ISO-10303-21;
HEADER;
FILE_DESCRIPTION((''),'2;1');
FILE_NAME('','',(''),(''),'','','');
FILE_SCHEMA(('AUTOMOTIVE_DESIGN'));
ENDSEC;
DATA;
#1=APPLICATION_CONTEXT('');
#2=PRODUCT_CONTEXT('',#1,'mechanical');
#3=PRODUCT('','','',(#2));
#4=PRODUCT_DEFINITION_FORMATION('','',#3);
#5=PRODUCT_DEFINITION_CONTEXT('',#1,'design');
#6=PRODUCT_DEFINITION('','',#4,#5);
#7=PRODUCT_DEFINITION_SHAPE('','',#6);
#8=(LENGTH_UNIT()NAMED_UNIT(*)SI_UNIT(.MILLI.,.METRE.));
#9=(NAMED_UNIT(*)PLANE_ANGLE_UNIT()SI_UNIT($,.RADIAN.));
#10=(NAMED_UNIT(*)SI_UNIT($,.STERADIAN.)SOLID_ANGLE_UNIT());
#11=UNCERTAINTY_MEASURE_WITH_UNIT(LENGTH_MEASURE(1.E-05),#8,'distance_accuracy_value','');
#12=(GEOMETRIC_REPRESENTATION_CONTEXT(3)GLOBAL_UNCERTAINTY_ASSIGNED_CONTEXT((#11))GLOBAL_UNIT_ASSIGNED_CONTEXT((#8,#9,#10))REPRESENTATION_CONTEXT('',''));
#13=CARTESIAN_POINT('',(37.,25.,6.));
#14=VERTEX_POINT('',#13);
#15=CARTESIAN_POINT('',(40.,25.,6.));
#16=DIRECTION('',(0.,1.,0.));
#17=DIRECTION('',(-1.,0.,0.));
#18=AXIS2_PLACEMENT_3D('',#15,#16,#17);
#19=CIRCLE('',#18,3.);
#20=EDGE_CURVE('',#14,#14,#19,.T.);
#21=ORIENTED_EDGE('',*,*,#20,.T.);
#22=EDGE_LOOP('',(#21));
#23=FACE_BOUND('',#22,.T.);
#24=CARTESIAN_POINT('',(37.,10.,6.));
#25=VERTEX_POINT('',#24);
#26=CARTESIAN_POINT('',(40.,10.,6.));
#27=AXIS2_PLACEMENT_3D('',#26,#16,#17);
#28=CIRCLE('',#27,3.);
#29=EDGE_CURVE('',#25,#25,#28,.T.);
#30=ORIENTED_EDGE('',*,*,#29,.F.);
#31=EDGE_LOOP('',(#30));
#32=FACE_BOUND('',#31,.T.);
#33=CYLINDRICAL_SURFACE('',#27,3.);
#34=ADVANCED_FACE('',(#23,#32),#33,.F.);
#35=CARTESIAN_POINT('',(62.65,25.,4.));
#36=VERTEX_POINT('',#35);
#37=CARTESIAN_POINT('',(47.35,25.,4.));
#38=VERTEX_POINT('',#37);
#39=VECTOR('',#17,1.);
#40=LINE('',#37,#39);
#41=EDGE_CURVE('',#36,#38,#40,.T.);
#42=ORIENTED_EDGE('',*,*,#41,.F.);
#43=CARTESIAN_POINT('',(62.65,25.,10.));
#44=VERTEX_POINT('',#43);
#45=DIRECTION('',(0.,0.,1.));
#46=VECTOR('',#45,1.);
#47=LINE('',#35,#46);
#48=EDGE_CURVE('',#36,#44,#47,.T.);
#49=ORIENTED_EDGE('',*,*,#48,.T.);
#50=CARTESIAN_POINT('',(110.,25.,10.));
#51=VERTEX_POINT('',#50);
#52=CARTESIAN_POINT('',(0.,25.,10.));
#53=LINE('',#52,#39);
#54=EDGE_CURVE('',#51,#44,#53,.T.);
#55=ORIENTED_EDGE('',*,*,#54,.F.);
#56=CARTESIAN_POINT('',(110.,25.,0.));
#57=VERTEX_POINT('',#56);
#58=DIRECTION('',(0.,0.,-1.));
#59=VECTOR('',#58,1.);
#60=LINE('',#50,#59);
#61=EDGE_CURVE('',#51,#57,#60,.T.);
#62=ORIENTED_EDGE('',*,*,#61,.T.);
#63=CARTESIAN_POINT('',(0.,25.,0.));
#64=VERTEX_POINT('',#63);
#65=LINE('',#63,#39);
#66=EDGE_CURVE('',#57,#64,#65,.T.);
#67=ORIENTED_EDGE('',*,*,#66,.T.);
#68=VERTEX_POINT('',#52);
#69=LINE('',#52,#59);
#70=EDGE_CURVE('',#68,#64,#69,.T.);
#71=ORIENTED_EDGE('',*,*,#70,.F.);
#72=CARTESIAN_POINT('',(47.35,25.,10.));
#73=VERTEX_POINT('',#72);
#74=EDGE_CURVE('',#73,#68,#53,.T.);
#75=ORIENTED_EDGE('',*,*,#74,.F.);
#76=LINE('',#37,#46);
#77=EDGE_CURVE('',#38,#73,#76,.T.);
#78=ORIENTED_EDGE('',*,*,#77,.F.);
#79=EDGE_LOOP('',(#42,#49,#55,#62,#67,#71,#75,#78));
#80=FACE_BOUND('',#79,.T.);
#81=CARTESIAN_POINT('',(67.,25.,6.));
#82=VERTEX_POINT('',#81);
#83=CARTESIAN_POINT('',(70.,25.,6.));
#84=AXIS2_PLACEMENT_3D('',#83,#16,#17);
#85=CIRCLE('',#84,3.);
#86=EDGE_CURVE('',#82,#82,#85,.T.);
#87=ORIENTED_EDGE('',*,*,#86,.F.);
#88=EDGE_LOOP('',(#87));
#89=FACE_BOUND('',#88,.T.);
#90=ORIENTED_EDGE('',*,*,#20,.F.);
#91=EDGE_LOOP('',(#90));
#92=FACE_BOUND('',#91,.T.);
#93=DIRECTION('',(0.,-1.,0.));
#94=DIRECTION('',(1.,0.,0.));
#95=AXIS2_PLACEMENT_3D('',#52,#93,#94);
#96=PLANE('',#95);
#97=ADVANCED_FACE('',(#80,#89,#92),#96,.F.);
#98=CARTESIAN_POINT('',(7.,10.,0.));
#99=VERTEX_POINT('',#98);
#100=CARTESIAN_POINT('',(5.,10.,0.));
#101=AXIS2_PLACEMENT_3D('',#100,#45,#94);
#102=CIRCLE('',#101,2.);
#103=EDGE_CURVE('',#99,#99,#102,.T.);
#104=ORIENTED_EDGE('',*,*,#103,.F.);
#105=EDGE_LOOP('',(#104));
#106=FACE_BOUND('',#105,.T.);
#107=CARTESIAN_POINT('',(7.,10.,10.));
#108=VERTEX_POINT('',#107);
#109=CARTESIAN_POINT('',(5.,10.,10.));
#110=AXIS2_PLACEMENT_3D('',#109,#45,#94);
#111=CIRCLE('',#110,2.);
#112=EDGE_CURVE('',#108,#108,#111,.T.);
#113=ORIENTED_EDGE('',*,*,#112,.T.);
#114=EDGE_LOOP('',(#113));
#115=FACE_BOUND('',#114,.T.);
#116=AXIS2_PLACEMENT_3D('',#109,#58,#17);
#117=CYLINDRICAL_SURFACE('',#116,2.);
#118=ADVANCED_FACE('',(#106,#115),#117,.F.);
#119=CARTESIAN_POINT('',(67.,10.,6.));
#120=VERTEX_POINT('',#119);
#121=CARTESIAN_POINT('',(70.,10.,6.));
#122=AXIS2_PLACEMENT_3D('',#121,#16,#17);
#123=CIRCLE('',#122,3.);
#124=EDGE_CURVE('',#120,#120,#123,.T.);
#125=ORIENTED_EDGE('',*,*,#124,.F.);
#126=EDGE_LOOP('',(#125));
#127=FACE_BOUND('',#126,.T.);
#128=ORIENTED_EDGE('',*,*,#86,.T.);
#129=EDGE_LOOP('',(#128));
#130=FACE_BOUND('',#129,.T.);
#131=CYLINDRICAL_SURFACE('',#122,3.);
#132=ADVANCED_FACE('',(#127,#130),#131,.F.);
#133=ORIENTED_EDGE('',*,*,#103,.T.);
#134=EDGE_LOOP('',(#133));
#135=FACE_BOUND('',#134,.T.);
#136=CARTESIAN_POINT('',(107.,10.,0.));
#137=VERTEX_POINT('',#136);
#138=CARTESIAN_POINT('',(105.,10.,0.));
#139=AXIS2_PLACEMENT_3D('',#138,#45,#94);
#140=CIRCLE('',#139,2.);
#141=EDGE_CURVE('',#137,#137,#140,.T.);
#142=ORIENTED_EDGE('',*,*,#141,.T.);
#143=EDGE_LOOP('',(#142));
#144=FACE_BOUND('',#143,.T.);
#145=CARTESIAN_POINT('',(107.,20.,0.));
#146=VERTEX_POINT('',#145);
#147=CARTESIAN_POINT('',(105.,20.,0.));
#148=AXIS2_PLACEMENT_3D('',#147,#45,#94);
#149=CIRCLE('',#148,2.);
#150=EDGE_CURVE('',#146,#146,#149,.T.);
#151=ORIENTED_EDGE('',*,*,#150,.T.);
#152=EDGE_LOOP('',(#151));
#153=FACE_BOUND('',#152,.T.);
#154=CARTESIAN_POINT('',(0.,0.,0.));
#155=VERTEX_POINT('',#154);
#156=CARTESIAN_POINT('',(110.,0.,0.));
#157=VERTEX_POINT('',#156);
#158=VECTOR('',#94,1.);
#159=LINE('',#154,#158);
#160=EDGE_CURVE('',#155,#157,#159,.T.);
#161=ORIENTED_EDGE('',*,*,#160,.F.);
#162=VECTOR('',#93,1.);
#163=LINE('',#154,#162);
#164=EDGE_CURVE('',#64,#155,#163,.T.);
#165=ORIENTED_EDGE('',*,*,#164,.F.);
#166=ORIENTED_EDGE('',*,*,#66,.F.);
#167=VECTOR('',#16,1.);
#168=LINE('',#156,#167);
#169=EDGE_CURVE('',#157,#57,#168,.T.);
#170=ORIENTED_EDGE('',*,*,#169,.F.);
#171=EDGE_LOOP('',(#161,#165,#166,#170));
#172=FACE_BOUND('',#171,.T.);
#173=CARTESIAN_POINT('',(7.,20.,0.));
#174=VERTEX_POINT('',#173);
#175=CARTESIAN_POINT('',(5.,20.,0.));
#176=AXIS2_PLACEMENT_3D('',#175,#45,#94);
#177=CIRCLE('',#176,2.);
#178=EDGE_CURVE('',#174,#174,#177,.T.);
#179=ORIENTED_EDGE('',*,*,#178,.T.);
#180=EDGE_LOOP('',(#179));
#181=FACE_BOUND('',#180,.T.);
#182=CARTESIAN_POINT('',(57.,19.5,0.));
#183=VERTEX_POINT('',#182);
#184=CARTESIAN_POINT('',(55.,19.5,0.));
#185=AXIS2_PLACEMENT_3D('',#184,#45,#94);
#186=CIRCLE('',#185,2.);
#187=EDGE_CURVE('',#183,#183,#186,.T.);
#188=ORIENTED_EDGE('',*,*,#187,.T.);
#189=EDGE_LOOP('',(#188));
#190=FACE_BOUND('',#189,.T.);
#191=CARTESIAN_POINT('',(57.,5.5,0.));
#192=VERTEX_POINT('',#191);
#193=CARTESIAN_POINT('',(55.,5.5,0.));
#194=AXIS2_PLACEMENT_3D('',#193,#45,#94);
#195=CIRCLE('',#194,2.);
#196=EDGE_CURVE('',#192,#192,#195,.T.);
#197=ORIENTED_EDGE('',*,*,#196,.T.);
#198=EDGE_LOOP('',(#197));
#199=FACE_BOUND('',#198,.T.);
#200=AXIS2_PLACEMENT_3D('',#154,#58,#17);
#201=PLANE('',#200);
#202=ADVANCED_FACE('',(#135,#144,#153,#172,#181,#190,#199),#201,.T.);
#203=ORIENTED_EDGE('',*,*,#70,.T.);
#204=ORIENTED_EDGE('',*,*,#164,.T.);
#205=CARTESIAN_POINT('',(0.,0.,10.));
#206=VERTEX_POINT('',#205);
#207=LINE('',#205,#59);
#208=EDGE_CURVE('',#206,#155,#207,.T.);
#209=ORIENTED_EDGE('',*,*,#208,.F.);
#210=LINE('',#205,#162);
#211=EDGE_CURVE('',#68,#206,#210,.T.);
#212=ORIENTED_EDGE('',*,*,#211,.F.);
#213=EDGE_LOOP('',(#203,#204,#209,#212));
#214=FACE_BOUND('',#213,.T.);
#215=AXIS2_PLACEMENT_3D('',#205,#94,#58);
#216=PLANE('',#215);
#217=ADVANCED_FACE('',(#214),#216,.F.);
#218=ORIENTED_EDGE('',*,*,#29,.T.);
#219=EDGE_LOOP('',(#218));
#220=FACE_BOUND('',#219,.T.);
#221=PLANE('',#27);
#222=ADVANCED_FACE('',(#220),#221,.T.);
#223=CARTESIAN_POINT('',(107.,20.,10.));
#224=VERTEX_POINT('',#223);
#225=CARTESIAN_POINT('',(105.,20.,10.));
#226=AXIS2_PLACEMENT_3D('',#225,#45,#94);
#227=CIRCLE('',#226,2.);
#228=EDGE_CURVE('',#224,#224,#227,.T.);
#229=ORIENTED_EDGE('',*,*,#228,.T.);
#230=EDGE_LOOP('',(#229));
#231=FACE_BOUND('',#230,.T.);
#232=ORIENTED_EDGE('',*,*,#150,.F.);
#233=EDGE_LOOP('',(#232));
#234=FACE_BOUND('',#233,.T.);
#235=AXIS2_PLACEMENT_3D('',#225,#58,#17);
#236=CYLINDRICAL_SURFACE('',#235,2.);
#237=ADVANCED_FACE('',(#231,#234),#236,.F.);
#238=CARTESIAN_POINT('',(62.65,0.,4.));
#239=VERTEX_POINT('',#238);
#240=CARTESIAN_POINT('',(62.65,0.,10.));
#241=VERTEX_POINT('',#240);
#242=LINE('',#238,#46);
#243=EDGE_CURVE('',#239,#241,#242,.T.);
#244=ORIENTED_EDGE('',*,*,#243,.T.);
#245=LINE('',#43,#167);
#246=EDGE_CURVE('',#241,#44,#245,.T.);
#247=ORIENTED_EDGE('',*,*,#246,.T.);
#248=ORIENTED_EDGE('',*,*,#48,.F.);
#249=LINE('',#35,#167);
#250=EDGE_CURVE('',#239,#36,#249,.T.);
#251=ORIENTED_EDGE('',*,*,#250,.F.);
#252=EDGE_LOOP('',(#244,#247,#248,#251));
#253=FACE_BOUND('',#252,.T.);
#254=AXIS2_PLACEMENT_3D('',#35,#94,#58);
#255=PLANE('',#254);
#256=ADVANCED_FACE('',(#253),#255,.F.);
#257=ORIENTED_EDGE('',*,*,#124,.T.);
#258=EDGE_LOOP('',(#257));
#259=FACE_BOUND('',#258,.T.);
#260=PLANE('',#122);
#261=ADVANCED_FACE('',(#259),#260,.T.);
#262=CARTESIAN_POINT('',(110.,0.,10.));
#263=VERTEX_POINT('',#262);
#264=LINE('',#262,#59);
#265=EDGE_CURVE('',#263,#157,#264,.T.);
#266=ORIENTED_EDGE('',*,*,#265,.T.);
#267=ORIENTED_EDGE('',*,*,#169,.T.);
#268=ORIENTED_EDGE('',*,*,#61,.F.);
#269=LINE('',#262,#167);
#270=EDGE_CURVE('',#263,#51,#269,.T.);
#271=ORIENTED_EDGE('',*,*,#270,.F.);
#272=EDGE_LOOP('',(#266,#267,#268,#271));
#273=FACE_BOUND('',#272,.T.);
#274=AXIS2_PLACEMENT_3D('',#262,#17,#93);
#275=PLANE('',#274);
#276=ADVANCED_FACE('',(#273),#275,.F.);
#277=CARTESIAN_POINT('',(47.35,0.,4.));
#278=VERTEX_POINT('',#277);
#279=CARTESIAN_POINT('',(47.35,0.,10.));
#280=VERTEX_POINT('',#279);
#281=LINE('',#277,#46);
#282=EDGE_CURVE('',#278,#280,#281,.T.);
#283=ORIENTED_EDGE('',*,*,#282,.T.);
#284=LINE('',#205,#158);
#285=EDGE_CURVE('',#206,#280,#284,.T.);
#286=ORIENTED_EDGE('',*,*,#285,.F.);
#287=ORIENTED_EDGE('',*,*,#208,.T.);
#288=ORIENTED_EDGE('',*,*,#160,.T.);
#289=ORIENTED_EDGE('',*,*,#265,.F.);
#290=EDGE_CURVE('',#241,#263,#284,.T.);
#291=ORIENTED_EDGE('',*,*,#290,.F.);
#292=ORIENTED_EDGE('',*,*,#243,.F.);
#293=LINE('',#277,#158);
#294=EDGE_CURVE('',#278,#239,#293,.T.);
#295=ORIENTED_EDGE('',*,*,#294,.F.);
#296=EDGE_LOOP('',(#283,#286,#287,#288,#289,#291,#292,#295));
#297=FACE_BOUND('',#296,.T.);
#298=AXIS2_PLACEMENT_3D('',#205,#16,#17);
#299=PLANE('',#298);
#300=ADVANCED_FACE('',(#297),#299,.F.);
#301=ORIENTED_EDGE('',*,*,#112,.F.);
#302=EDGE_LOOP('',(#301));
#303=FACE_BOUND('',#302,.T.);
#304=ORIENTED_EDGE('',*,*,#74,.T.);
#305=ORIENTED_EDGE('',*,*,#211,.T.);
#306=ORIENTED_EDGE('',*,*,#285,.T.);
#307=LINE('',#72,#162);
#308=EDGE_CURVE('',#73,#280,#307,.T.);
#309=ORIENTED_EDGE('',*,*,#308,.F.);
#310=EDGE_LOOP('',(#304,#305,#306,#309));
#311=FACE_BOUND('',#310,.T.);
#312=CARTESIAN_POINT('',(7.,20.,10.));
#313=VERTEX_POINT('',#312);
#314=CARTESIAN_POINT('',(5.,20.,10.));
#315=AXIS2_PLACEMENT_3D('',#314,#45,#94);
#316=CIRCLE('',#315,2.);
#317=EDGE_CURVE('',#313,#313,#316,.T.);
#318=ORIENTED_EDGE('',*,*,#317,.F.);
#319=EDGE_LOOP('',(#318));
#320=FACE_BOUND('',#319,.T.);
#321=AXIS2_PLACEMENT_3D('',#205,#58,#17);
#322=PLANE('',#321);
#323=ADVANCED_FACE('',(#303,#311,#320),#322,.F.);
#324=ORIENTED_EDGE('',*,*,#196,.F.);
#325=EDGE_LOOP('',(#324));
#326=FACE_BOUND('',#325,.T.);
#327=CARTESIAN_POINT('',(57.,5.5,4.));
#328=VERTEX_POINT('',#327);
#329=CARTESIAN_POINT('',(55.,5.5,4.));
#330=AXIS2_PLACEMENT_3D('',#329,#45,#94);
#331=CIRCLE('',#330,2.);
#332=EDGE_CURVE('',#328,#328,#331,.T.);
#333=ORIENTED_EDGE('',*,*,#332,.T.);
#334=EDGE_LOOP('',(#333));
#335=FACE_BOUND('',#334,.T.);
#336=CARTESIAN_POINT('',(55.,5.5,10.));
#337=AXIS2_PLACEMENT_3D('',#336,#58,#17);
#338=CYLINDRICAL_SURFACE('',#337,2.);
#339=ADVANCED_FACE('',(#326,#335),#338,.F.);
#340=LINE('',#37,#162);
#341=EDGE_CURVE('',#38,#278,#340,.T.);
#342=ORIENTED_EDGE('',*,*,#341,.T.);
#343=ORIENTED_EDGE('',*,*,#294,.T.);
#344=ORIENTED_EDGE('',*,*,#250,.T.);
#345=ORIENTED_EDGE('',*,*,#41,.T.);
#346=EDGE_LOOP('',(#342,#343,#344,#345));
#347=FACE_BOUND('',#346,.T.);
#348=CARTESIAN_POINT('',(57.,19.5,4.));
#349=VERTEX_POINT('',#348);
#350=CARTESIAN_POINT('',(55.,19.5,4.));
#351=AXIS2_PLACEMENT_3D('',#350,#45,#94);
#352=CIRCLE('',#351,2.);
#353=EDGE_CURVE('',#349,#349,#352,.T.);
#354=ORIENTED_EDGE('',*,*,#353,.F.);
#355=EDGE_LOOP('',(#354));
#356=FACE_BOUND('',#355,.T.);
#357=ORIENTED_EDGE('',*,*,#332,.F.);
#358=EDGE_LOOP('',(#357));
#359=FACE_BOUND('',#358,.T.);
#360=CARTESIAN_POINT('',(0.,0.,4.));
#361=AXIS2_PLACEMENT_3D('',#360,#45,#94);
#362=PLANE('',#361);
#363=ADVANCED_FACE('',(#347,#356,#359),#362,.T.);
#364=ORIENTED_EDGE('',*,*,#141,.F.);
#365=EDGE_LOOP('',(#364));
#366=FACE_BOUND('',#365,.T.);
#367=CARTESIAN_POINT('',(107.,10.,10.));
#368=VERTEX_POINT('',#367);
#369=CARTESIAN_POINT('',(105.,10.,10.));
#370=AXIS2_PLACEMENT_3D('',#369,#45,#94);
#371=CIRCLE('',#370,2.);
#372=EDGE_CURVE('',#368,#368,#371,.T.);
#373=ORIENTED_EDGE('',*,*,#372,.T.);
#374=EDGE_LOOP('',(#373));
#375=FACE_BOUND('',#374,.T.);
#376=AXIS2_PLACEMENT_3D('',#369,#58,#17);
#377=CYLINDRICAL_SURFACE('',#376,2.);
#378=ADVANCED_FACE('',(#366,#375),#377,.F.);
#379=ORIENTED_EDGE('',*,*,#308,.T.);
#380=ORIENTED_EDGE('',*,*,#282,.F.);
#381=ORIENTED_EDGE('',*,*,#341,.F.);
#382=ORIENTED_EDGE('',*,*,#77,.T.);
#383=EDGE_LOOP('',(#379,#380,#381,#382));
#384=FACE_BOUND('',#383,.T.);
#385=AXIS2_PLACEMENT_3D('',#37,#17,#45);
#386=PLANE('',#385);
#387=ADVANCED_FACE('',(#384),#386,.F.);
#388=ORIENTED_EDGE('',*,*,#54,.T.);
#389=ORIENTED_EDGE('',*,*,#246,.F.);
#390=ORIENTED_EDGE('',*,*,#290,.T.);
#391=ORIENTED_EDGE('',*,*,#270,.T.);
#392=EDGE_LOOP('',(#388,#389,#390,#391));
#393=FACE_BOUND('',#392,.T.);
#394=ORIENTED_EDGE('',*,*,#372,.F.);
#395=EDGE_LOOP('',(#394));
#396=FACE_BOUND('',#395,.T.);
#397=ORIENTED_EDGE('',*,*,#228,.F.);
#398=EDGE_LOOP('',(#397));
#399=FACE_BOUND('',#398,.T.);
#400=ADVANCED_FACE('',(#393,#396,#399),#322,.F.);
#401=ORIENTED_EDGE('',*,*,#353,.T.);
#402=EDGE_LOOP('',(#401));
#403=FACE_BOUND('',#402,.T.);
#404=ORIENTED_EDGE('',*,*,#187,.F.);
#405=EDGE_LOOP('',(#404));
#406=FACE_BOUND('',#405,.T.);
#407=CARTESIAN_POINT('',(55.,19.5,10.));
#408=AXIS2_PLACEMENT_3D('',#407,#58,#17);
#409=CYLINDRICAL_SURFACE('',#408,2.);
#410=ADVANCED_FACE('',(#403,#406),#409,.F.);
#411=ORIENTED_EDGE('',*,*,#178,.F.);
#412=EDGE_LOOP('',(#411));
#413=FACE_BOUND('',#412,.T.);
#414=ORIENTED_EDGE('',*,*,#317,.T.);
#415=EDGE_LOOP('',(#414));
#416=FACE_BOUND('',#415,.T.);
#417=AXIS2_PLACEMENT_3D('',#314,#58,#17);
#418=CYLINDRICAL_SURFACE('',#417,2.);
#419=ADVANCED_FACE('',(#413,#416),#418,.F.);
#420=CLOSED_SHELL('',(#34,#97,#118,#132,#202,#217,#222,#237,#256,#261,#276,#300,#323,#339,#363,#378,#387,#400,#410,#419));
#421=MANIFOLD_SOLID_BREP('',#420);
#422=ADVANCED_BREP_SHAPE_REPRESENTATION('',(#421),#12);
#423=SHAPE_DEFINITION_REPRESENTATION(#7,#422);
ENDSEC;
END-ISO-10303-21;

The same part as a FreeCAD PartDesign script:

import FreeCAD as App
import Part
import Sketcher


def add_polygon(sketch, points):
    """Adds a closed chain of lines whose ends are joined by coincident constraints."""
    first, n = sketch.GeometryCount, len(points)
    for a, b in zip(points, points[1:] + points[:1]):
        sketch.addGeometry(Part.LineSegment(App.Vector(*a, 0), App.Vector(*b, 0)), False)
    for i in range(n):
        sketch.addConstraint(Sketcher.Constraint("Coincident", first + i, 2, first + (i + 1) % n, 1))

doc = App.newDocument("Part")
body = doc.addObject("PartDesign::Body", "Body")

sketch1 = body.newObject("Sketcher::SketchObject", "Sketch")
sketch1.AttachmentSupport = (doc.getObject("XY_Plane"), [""])
sketch1.MapMode = "FlatFace"
add_polygon(sketch1, [(0, 25), (0, 0), (110, 0), (110, 25)])
sketch1.addGeometry(Part.Circle(App.Vector(5, 10, 0), App.Vector(0, 0, 1), 2), False)
sketch1.addGeometry(Part.Circle(App.Vector(55, 5.5, 0), App.Vector(0, 0, 1), 2), False)
sketch1.addGeometry(Part.Circle(App.Vector(105, 10, 0), App.Vector(0, 0, 1), 2), False)
sketch1.addGeometry(Part.Circle(App.Vector(5, 20, 0), App.Vector(0, 0, 1), 2), False)
sketch1.addGeometry(Part.Circle(App.Vector(55, 19.5, 0), App.Vector(0, 0, 1), 2), False)
sketch1.addGeometry(Part.Circle(App.Vector(105, 20, 0), App.Vector(0, 0, 1), 2), False)
sketch1.addConstraint([
    Sketcher.Constraint("Vertical", 0),
    Sketcher.Constraint("Horizontal", 1),
    Sketcher.Constraint("Vertical", 2),
    Sketcher.Constraint("Horizontal", 3),
    Sketcher.Constraint("Coincident", 0, 2, -1, 1),
    Sketcher.Constraint("Equal", 4, 5),
    Sketcher.Constraint("Equal", 5, 6),
    Sketcher.Constraint("Equal", 6, 7),
    Sketcher.Constraint("Equal", 7, 8),
    Sketcher.Constraint("Equal", 8, 9),
    Sketcher.Constraint("Horizontal", 4, 3, 6, 3),
    Sketcher.Constraint("Horizontal", 7, 3, 9, 3),
    Sketcher.Constraint("Vertical", 4, 3, 7, 3),
    Sketcher.Constraint("Vertical", 5, 3, 8, 3),
    Sketcher.Constraint("Vertical", 6, 3, 9, 3),
    Sketcher.Constraint("Diameter", 4, 4.0),
    Sketcher.Constraint("DistanceX", 1, 1, 1, 2, 110.0),
    Sketcher.Constraint("DistanceY", 0, 2, 0, 1, 25.0),
    Sketcher.Constraint("DistanceX", -1, 1, 4, 3, 5.0),
    Sketcher.Constraint("DistanceY", -1, 1, 4, 3, 10.0),
    Sketcher.Constraint("DistanceX", -1, 1, 5, 3, 55.0),
    Sketcher.Constraint("DistanceX", -1, 1, 6, 3, 105.0),
    Sketcher.Constraint("DistanceY", -1, 1, 7, 3, 20.0),
    Sketcher.Constraint("DistanceY", 5, 3, 8, 3, 14.0),
    Sketcher.Constraint("DistanceY", -1, 1, 5, 3, 5.5),
])
pad1 = body.newObject("PartDesign::Pad", "Pad")
pad1.Profile = sketch1
pad1.Length = 10

sketch2 = body.newObject("Sketcher::SketchObject", "Sketch001")
sketch2.AttachmentSupport = (doc.getObject("XY_Plane"), [""])
sketch2.MapMode = "FlatFace"
sketch2.AttachmentOffset = App.Placement(App.Vector(0, 0, 10), App.Rotation())
add_polygon(sketch2, [(47, 25), (47, 0), (63, 0), (63, 25)])
sketch2.addConstraint([
    Sketcher.Constraint("Vertical", 0),
    Sketcher.Constraint("Horizontal", 1),
    Sketcher.Constraint("Vertical", 2),
    Sketcher.Constraint("Horizontal", 3),
    Sketcher.Constraint("PointOnObject", 0, 2, -1),
    Sketcher.Constraint("DistanceY", 0, 2, 0, 1, 25.0),
    Sketcher.Constraint("DistanceX", 1, 1, 1, 2, 15.3),
    Sketcher.Constraint("DistanceX", -1, 1, 0, 2, 47.35),
])
pocket1 = body.newObject("PartDesign::Pocket", "Pocket")
pocket1.Profile = sketch2
pocket1.Length = 6

sketch3 = body.newObject("Sketcher::SketchObject", "Sketch002")
sketch3.AttachmentSupport = (doc.getObject("XZ_Plane"), [""])
sketch3.MapMode = "FlatFace"
sketch3.AttachmentOffset = App.Placement(App.Vector(0, 0, -25), App.Rotation())
sketch3.addGeometry([
    Part.Circle(App.Vector(70, 6, 0), App.Vector(0, 0, 1), 3),
    Part.Circle(App.Vector(40, 6, 0), App.Vector(0, 0, 1), 3),
], False)
sketch3.addConstraint([
    Sketcher.Constraint("Equal", 0, 1),
    Sketcher.Constraint("Horizontal", 0, 3, 1, 3),
    Sketcher.Constraint("Diameter", 0, 6.0),
    Sketcher.Constraint("DistanceX", -1, 1, 0, 3, 70.0),
    Sketcher.Constraint("DistanceY", -1, 1, 0, 3, 6.0),
    Sketcher.Constraint("DistanceX", -1, 1, 1, 3, 40.0),
])
pocket2 = body.newObject("PartDesign::Pocket", "Pocket001")
pocket2.Profile = sketch3
pocket2.Length = 15
pocket2.Reversed = True

doc.recompute()
